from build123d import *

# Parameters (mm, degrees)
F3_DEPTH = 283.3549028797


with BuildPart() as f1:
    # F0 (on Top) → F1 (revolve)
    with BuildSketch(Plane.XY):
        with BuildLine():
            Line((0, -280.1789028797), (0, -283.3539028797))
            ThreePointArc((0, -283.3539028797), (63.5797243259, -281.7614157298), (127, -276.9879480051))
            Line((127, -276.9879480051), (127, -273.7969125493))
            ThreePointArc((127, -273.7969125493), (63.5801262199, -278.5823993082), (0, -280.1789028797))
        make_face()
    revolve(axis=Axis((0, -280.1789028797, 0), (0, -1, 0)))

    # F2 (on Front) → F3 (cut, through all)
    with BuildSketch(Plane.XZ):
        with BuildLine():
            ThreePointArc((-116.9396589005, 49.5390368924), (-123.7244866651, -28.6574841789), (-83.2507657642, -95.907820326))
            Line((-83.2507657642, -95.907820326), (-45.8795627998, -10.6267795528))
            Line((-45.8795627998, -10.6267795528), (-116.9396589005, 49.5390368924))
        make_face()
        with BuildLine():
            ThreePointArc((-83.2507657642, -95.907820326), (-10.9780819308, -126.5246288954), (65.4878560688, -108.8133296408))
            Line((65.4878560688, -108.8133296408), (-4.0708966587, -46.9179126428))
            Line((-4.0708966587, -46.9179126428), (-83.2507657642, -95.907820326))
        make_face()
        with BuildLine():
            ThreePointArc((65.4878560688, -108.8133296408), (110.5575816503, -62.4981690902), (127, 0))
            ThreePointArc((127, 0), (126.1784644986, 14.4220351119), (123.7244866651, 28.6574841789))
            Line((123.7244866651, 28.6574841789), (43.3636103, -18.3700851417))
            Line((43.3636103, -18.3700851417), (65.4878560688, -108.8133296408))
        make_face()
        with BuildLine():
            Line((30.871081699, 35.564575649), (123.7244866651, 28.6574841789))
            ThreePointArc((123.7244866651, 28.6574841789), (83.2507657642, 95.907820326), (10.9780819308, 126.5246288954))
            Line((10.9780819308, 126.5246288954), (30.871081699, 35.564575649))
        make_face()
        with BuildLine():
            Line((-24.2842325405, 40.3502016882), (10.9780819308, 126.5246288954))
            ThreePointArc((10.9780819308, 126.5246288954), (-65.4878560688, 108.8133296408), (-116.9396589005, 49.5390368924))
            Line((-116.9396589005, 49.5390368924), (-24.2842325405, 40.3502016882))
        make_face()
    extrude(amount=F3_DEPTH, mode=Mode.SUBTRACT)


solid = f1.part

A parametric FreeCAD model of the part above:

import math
import FreeCAD as App
import Part
import Sketcher
from FreeCAD import Vector
Q = App.Units.Quantity

doc = App.newDocument("Part")
params = doc.addObject("Spreadsheet::Sheet", "Params")
for row, (alias, value) in enumerate([
    ("sketch1_radius", "50 in"),
    ("sketch1_radius2", "49.875 in"),
    ("revolution_angle", "360 deg"),
    ("sketch2_radius", "5 in"),
], start=1):
    params.set(f"A{row}", alias)
    params.set(f"B{row}", "=" + value)
    params.setAlias(f"B{row}", alias)

body = doc.addObject("PartDesign::Body", "Body")

sketch1 = doc.addObject("Sketcher::SketchObject", "Sketch")
body.addObject(sketch1)
sketch1.AttachmentSupport = (doc.XY_Plane, [""])
sketch1.MapMode = "FlatFace"
sketch1.addGeometry([
    Part.LineSegment(Vector(0, -280.2, 0), Vector(0, -283.4, 0)),
    Part.ArcOfCircle(Part.Circle(Vector(0, 986.6, 0), Vector(0, 0, 1), 1270), math.radians(-90), math.radians(-84.26)),
    Part.LineSegment(Vector(127, -277, 0), Vector(127, -273.8, 0)),
    Part.ArcOfCircle(Part.Circle(Vector(0, 986.6, 0), Vector(0, 0, 1), 1266.8), math.radians(-90), math.radians(-84.25)),
], False)
sketch1.addConstraint([
    Sketcher.Constraint("Coincident", 0, 2, 1, 1),
    Sketcher.Constraint("Coincident", 1, 2, 2, 1),
    Sketcher.Constraint("Coincident", 2, 2, 3, 2),
    Sketcher.Constraint("Coincident", 3, 1, 0, 1),
    Sketcher.Constraint("Vertical", 0),
    Sketcher.Constraint("Vertical", 2),
    Sketcher.Constraint("Coincident", 3, 3, 1, 3),
    Sketcher.Constraint("PointOnObject", 1, 3, -2),
    Sketcher.Constraint("PointOnObject", 0, 2, -2),
    Sketcher.Constraint("Radius", 1, Q("50 in")),
    Sketcher.Constraint("DistanceX", -1, 1, 2, 2, Q("5 in")),
    Sketcher.Constraint("Radius", 3, Q("49.875 in")),
    Sketcher.Constraint("DistanceY", 1, 2, -1, 1, Q("276.987948 mm")),
])
sketch1.setExpression("Constraints[9]", "Params.sketch1_radius")
sketch1.setExpression("Constraints[11]", "Params.sketch1_radius2")
revolution = doc.addObject("PartDesign::Revolution", "Revolution")
body.addObject(revolution)
revolution.Profile = sketch1
revolution.ReferenceAxis = (sketch1, ["V_Axis"])
revolution.setExpression("Angle", "Params.revolution_angle")

sketch2 = doc.addObject("Sketcher::SketchObject", "Sketch001")
body.addObject(sketch2)
sketch2.AttachmentSupport = (doc.XZ_Plane, [""])
sketch2.MapMode = "FlatFace"
sketch2.addGeometry([
    Part.ArcOfCircle(Part.Circle(Vector(0, 0, 0), Vector(0, 0, 1), 127), math.radians(157), math.radians(229)),
    Part.LineSegment(Vector(-83, -96, 0), Vector(-46, -11, 0)),
    Part.LineSegment(Vector(-46, -11, 0), Vector(-117, 50, 0)),
    Part.ArcOfCircle(Part.Circle(Vector(0, 0, 0), Vector(0, 0, 1), 127), math.radians(-131), math.radians(-59)),
    Part.LineSegment(Vector(65, -109, 0), Vector(-4, -47, 0)),
    Part.LineSegment(Vector(-4, -47, 0), Vector(-83, -96, 0)),
    Part.ArcOfCircle(Part.Circle(Vector(0, 0, 0), Vector(0, 0, 1), 127), math.radians(-59), math.radians(0)),
    Part.ArcOfCircle(Part.Circle(Vector(0, 0, 0), Vector(0, 0, 1), 127), math.radians(0), math.radians(13.04)),
    Part.LineSegment(Vector(124, 29, 0), Vector(43, -18, 0)),
    Part.LineSegment(Vector(43, -18, 0), Vector(65, -109, 0)),
    Part.LineSegment(Vector(31, 36, 0), Vector(124, 29, 0)),
    Part.ArcOfCircle(Part.Circle(Vector(0, 0, 0), Vector(0, 0, 1), 127), math.radians(13), math.radians(85)),
    Part.LineSegment(Vector(11, 127, 0), Vector(31, 36, 0)),
    Part.LineSegment(Vector(-24, 40, 0), Vector(11, 127, 0)),
    Part.ArcOfCircle(Part.Circle(Vector(0, 0, 0), Vector(0, 0, 1), 127), math.radians(85), math.radians(157)),
    Part.LineSegment(Vector(-117, 50, 0), Vector(-24, 40, 0)),
], False)
sketch2.addConstraint([
    Sketcher.Constraint("Coincident", 0, 2, 1, 1),
    Sketcher.Constraint("Coincident", 1, 2, 2, 1),
    Sketcher.Constraint("Coincident", 2, 2, 0, 1),
    Sketcher.Constraint("Coincident", 3, 2, 4, 1),
    Sketcher.Constraint("Coincident", 4, 2, 5, 1),
    Sketcher.Constraint("Coincident", 5, 2, 3, 1),
    Sketcher.Constraint("Tangent", 6, 2, 7, 1),
    Sketcher.Constraint("Coincident", 7, 2, 8, 1),
    Sketcher.Constraint("Coincident", 8, 2, 9, 1),
    Sketcher.Constraint("Coincident", 9, 2, 6, 1),
    Sketcher.Constraint("Coincident", 10, 2, 11, 1),
    Sketcher.Constraint("Coincident", 11, 2, 12, 1),
    Sketcher.Constraint("Coincident", 12, 2, 10, 1),
    Sketcher.Constraint("Coincident", 13, 2, 14, 1),
    Sketcher.Constraint("Coincident", 14, 2, 15, 1),
    Sketcher.Constraint("Coincident", 15, 2, 13, 1),
    Sketcher.Constraint("Coincident", 0, 3, -1, 1),
    Sketcher.Constraint("Coincident", 3, 3, -1, 1),
    Sketcher.Constraint("Coincident", 6, 3, -1, 1),
    Sketcher.Constraint("Coincident", 11, 3, -1, 1),
    Sketcher.Constraint("Coincident", 14, 3, -1, 1),
    Sketcher.Constraint("Coincident", 5, 2, 0, 2),
    Sketcher.Constraint("Coincident", 9, 2, 3, 2),
    Sketcher.Constraint("Coincident", 10, 2, 7, 2),
    Sketcher.Constraint("Coincident", 13, 2, 11, 2),
    Sketcher.Constraint("Equal", 6, 7),
    Sketcher.Constraint("PointOnObject", 6, 2, -1),
    Sketcher.Constraint("Equal", 1, 2),
    Sketcher.Constraint("Equal", 2, 4),
    Sketcher.Constraint("Equal", 4, 5),
    Sketcher.Constraint("Equal", 5, 8),
    Sketcher.Constraint("Equal", 8, 9),
    Sketcher.Constraint("Equal", 9, 10),
    Sketcher.Constraint("Equal", 10, 12),
    Sketcher.Constraint("Equal", 12, 13),
    Sketcher.Constraint("Equal", 13, 15),
    Sketcher.Constraint("Radius", 0, Q("5 in")),
    Sketcher.Constraint("DistanceY", -1, 1, 15, 2, Q("40.350202 mm")),
    Sketcher.Constraint("DistanceX", 13, 2, 12, 2, Q("19.893 mm")),
    Sketcher.Constraint("Distance", 1, Q("93.10995 mm")),
    Sketcher.Constraint("DistanceY", 0, 2, -1, 1, Q("95.90782 mm")),
    Sketcher.Constraint("DistanceY", 1, 2, -1, 1, Q("10.62678 mm")),
    Sketcher.Constraint("DistanceY", 3, 2, -1, 1, Q("108.81333 mm")),
    Sketcher.Constraint("DistanceX", -1, 1, 8, 2, Q("43.36361 mm")),
])
sketch2.setExpression("Constraints[36]", "Params.sketch2_radius")
pocket1 = doc.addObject("PartDesign::Pocket", "Pocket")
body.addObject(pocket1)
pocket1.Profile = sketch2
pocket1.Type = "ThroughAll"
pocket1.Reversed = True

doc.recompute()
